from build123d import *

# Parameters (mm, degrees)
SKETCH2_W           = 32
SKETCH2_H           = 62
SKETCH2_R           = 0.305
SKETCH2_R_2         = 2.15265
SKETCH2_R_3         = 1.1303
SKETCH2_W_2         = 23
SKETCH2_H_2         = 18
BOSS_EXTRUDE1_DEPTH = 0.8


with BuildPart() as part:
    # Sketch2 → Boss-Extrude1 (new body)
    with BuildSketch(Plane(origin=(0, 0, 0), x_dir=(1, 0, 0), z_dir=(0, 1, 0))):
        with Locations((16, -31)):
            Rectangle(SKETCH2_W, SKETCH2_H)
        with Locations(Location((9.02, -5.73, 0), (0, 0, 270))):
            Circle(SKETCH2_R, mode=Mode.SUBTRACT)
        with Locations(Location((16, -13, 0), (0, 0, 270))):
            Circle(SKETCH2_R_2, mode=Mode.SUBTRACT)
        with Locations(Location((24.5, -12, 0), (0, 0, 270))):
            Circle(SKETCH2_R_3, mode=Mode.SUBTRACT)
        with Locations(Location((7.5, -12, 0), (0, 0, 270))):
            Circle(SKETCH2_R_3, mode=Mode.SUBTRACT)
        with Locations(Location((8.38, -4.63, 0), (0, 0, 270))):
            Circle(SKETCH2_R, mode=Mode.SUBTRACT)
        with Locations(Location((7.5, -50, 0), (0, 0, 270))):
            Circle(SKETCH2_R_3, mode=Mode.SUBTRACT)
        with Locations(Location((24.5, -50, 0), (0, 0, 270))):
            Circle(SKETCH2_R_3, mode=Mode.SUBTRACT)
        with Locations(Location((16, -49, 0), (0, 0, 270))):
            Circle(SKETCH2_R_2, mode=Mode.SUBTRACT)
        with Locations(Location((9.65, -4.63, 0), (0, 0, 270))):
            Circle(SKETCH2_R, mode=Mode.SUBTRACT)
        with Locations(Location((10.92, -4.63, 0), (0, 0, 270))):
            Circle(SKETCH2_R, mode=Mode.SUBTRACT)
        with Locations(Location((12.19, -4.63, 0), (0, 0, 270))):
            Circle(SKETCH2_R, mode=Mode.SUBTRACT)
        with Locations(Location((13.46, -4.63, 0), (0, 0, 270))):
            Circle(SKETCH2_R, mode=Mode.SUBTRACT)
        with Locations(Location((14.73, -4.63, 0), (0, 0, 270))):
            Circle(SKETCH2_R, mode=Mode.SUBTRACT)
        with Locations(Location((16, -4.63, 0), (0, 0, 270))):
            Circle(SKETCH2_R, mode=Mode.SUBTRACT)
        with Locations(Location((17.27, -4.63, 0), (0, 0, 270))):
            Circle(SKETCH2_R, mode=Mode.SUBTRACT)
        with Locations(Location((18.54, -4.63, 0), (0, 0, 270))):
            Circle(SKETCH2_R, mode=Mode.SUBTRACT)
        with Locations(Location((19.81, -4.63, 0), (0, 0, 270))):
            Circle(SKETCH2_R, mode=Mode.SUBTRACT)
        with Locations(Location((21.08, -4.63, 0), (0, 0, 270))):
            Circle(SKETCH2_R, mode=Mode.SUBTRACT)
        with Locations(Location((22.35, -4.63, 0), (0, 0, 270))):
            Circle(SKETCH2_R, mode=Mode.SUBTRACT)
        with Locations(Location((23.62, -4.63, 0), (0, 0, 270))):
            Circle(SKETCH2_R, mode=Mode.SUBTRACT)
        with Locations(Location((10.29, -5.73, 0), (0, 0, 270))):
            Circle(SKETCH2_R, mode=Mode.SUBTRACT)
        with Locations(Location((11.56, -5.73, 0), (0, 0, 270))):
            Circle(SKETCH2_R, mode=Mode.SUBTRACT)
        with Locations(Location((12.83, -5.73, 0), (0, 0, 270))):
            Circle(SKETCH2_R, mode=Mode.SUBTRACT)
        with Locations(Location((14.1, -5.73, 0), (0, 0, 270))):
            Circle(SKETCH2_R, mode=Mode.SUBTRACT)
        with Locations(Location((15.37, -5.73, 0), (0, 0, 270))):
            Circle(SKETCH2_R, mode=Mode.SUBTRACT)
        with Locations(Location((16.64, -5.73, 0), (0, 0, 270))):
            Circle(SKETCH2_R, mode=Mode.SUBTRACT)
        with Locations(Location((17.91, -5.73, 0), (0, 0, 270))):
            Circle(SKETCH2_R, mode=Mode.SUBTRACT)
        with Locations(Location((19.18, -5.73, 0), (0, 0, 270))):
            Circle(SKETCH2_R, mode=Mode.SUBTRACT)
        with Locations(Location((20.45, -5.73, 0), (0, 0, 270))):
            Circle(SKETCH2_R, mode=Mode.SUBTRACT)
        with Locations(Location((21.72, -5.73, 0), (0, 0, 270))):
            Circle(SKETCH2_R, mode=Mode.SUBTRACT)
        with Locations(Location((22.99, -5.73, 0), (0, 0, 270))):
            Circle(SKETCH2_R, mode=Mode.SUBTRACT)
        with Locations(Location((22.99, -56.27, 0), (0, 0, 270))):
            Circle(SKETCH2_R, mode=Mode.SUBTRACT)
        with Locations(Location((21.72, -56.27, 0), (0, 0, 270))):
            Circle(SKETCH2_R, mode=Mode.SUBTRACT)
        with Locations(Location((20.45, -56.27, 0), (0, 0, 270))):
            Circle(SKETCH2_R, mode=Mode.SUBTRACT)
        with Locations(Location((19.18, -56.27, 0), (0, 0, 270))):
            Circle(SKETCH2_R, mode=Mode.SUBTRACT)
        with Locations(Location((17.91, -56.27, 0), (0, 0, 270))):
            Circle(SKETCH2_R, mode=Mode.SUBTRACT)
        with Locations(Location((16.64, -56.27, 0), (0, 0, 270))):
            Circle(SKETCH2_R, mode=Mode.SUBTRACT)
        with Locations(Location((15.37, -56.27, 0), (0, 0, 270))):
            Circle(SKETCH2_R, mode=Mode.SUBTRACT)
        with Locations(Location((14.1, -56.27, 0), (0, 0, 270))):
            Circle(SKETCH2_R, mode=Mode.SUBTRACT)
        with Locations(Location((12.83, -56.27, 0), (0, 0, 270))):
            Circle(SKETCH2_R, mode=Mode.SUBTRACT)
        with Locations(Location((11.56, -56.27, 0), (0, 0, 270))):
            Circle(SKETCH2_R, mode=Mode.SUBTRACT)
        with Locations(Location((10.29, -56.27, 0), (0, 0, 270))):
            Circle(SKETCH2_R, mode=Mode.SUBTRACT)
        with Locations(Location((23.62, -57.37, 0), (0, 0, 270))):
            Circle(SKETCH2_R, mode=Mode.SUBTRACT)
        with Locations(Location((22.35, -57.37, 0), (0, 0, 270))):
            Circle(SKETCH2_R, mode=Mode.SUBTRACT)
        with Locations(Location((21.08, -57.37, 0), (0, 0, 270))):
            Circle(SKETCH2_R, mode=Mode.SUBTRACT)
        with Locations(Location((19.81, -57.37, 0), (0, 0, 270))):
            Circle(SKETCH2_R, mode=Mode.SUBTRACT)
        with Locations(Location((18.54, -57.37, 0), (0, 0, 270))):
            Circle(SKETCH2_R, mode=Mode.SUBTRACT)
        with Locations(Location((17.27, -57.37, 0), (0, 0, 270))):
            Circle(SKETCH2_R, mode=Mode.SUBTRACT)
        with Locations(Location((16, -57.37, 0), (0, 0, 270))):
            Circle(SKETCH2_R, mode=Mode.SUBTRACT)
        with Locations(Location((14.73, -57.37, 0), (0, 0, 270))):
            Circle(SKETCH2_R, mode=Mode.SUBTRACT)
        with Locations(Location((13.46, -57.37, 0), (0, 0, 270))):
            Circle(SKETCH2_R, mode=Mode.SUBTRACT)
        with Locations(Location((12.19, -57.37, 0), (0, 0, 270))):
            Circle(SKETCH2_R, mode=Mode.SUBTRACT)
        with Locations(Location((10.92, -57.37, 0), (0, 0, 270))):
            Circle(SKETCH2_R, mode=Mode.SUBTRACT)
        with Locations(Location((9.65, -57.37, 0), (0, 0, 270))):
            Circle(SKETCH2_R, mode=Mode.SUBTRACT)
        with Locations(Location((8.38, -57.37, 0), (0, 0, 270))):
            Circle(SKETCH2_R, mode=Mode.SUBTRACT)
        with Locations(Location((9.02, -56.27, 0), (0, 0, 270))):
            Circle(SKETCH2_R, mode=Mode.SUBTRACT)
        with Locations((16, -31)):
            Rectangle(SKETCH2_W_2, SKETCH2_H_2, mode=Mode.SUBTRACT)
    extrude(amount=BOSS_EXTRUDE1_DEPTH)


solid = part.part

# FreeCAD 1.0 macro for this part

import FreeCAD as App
import Part
import Sketcher
from FreeCAD import Vector

doc = App.newDocument("Part")
body = doc.addObject("PartDesign::Body", "Body")

sketch1 = doc.addObject("Sketcher::SketchObject", "Sketch")
body.addObject(sketch1)
sketch1.AttachmentSupport = (doc.XZ_Plane, [""])
sketch1.MapMode = "FlatFace"
sketch1.addGeometry(Part.LineSegment(Vector(0, 0, 0), Vector(0, 62, 0)), False)
sketch1.addGeometry(Part.LineSegment(Vector(0, 62, 0), Vector(32, 62, 0)), False)
sketch1.addGeometry(Part.LineSegment(Vector(32, 62, 0), Vector(32, 0, 0)), False)
sketch1.addGeometry(Part.LineSegment(Vector(32, 0, 0), Vector(0, 0, 0)), False)
sketch1.addGeometry(Part.Circle(Vector(8.38, 57.37, 0), Vector(0, 0, 1), 0.3), False)
sketch1.addGeometry(Part.Circle(Vector(9.02, 56.27, 0), Vector(0, 0, 1), 0.3), False)
sketch1.addGeometry(Part.Circle(Vector(9.65, 57.37, 0), Vector(0, 0, 1), 0.3), False)
sketch1.addGeometry(Part.Circle(Vector(7.5, 50, 0), Vector(0, 0, 1), 1.13), False)
sketch1.addGeometry(Part.Circle(Vector(10.92, 57.37, 0), Vector(0, 0, 1), 0.3), False)
sketch1.addGeometry(Part.Circle(Vector(10.29, 56.27, 0), Vector(0, 0, 1), 0.3), False)
sketch1.addGeometry(Part.Circle(Vector(11.56, 56.27, 0), Vector(0, 0, 1), 0.3), False)
sketch1.addGeometry(Part.Circle(Vector(12.19, 57.37, 0), Vector(0, 0, 1), 0.3), False)
sketch1.addGeometry(Part.Circle(Vector(12.83, 56.27, 0), Vector(0, 0, 1), 0.3), False)
sketch1.addGeometry(Part.Circle(Vector(13.46, 57.37, 0), Vector(0, 0, 1), 0.3), False)
sketch1.addGeometry(Part.Circle(Vector(14.1, 56.27, 0), Vector(0, 0, 1), 0.3), False)
sketch1.addGeometry(Part.Circle(Vector(14.73, 57.37, 0), Vector(0, 0, 1), 0.3), False)
sketch1.addGeometry(Part.Circle(Vector(15.37, 56.27, 0), Vector(0, 0, 1), 0.3), False)
sketch1.addGeometry(Part.Circle(Vector(16, 57.37, 0), Vector(0, 0, 1), 0.3), False)
sketch1.addGeometry(Part.Circle(Vector(16.64, 56.27, 0), Vector(0, 0, 1), 0.3), False)
sketch1.addGeometry(Part.Circle(Vector(17.27, 57.37, 0), Vector(0, 0, 1), 0.3), False)
sketch1.addGeometry(Part.Circle(Vector(17.91, 56.27, 0), Vector(0, 0, 1), 0.3), False)
sketch1.addGeometry(Part.Circle(Vector(18.54, 57.37, 0), Vector(0, 0, 1), 0.3), False)
sketch1.addGeometry(Part.Circle(Vector(19.18, 56.27, 0), Vector(0, 0, 1), 0.3), False)
sketch1.addGeometry(Part.Circle(Vector(19.81, 57.37, 0), Vector(0, 0, 1), 0.3), False)
sketch1.addGeometry(Part.Circle(Vector(20.45, 56.27, 0), Vector(0, 0, 1), 0.3), False)
sketch1.addGeometry(Part.Circle(Vector(21.08, 57.37, 0), Vector(0, 0, 1), 0.3), False)
sketch1.addGeometry(Part.Circle(Vector(21.72, 56.27, 0), Vector(0, 0, 1), 0.3), False)
sketch1.addGeometry(Part.Circle(Vector(16, 49, 0), Vector(0, 0, 1), 2.15), False)
sketch1.addGeometry(Part.Circle(Vector(22.35, 57.37, 0), Vector(0, 0, 1), 0.3), False)
sketch1.addGeometry(Part.Circle(Vector(22.99, 56.27, 0), Vector(0, 0, 1), 0.3), False)
sketch1.addGeometry(Part.Circle(Vector(23.62, 57.37, 0), Vector(0, 0, 1), 0.3), False)
sketch1.addGeometry(Part.Circle(Vector(24.5, 50, 0), Vector(0, 0, 1), 1.13), False)
sketch1.addGeometry(Part.Circle(Vector(7.5, 12, 0), Vector(0, 0, 1), 1.13), False)
sketch1.addGeometry(Part.Circle(Vector(8.38, 4.63, 0), Vector(0, 0, 1), 0.3), False)
sketch1.addGeometry(Part.Circle(Vector(9.02, 5.73, 0), Vector(0, 0, 1), 0.3), False)
sketch1.addGeometry(Part.Circle(Vector(9.65, 4.63, 0), Vector(0, 0, 1), 0.3), False)
sketch1.addGeometry(Part.Circle(Vector(10.29, 5.73, 0), Vector(0, 0, 1), 0.3), False)
sketch1.addGeometry(Part.Circle(Vector(10.92, 4.63, 0), Vector(0, 0, 1), 0.3), False)
sketch1.addGeometry(Part.Circle(Vector(11.56, 5.73, 0), Vector(0, 0, 1), 0.3), False)
sketch1.addGeometry(Part.Circle(Vector(12.19, 4.63, 0), Vector(0, 0, 1), 0.3), False)
sketch1.addGeometry(Part.Circle(Vector(12.83, 5.73, 0), Vector(0, 0, 1), 0.3), False)
sketch1.addGeometry(Part.Circle(Vector(13.46, 4.63, 0), Vector(0, 0, 1), 0.3), False)
sketch1.addGeometry(Part.Circle(Vector(14.1, 5.73, 0), Vector(0, 0, 1), 0.3), False)
sketch1.addGeometry(Part.Circle(Vector(14.73, 4.63, 0), Vector(0, 0, 1), 0.3), False)
sketch1.addGeometry(Part.Circle(Vector(15.37, 5.73, 0), Vector(0, 0, 1), 0.3), False)
sketch1.addGeometry(Part.LineSegment(Vector(27.5, 40, 0), Vector(4.5, 40, 0)), False)
sketch1.addGeometry(Part.LineSegment(Vector(4.5, 40, 0), Vector(4.5, 22, 0)), False)
sketch1.addGeometry(Part.LineSegment(Vector(4.5, 22, 0), Vector(27.5, 22, 0)), False)
sketch1.addGeometry(Part.LineSegment(Vector(27.5, 22, 0), Vector(27.5, 40, 0)), False)
sketch1.addGeometry(Part.Circle(Vector(16, 13, 0), Vector(0, 0, 1), 2.15), False)
sketch1.addGeometry(Part.Circle(Vector(16.64, 5.73, 0), Vector(0, 0, 1), 0.3), False)
sketch1.addGeometry(Part.Circle(Vector(16, 4.63, 0), Vector(0, 0, 1), 0.3), False)
sketch1.addGeometry(Part.Circle(Vector(17.27, 4.63, 0), Vector(0, 0, 1), 0.3), False)
sketch1.addGeometry(Part.Circle(Vector(17.91, 5.73, 0), Vector(0, 0, 1), 0.3), False)
sketch1.addGeometry(Part.Circle(Vector(18.54, 4.63, 0), Vector(0, 0, 1), 0.3), False)
sketch1.addGeometry(Part.Circle(Vector(19.18, 5.73, 0), Vector(0, 0, 1), 0.3), False)
sketch1.addGeometry(Part.Circle(Vector(19.81, 4.63, 0), Vector(0, 0, 1), 0.3), False)
sketch1.addGeometry(Part.Circle(Vector(20.45, 5.73, 0), Vector(0, 0, 1), 0.3), False)
sketch1.addGeometry(Part.Circle(Vector(21.72, 5.73, 0), Vector(0, 0, 1), 0.3), False)
sketch1.addGeometry(Part.Circle(Vector(21.08, 4.63, 0), Vector(0, 0, 1), 0.3), False)
sketch1.addGeometry(Part.Circle(Vector(24.5, 12, 0), Vector(0, 0, 1), 1.13), False)
sketch1.addGeometry(Part.Circle(Vector(22.35, 4.63, 0), Vector(0, 0, 1), 0.3), False)
sketch1.addGeometry(Part.Circle(Vector(22.99, 5.73, 0), Vector(0, 0, 1), 0.3), False)
sketch1.addGeometry(Part.Circle(Vector(23.62, 4.63, 0), Vector(0, 0, 1), 0.3), False)
sketch1.addConstraint(Sketcher.Constraint("Coincident", 0, 2, 1, 1))
sketch1.addConstraint(Sketcher.Constraint("Coincident", 1, 2, 2, 1))
sketch1.addConstraint(Sketcher.Constraint("Coincident", 2, 2, 3, 1))
sketch1.addConstraint(Sketcher.Constraint("Coincident", 3, 2, 0, 1))
sketch1.addConstraint(Sketcher.Constraint("Coincident", 45, 2, 46, 1))
sketch1.addConstraint(Sketcher.Constraint("Coincident", 46, 2, 47, 1))
sketch1.addConstraint(Sketcher.Constraint("Coincident", 47, 2, 48, 1))
sketch1.addConstraint(Sketcher.Constraint("Coincident", 48, 2, 45, 1))
sketch1.addConstraint(Sketcher.Constraint("Vertical", 0))
sketch1.addConstraint(Sketcher.Constraint("Horizontal", 1))
sketch1.addConstraint(Sketcher.Constraint("Vertical", 2))
sketch1.addConstraint(Sketcher.Constraint("Horizontal", 3))
sketch1.addConstraint(Sketcher.Constraint("Horizontal", 45))
sketch1.addConstraint(Sketcher.Constraint("Vertical", 46))
sketch1.addConstraint(Sketcher.Constraint("Horizontal", 47))
sketch1.addConstraint(Sketcher.Constraint("Vertical", 48))
sketch1.addConstraint(Sketcher.Constraint("Coincident", 3, 2, -1, 1))
sketch1.addConstraint(Sketcher.Constraint("Equal", 4, 5))
sketch1.addConstraint(Sketcher.Constraint("Equal", 5, 6))
sketch1.addConstraint(Sketcher.Constraint("Equal", 6, 8))
sketch1.addConstraint(Sketcher.Constraint("Equal", 8, 9))
sketch1.addConstraint(Sketcher.Constraint("Equal", 9, 10))
sketch1.addConstraint(Sketcher.Constraint("Equal", 10, 11))
sketch1.addConstraint(Sketcher.Constraint("Equal", 11, 12))
sketch1.addConstraint(Sketcher.Constraint("Equal", 12, 13))
sketch1.addConstraint(Sketcher.Constraint("Equal", 13, 14))
sketch1.addConstraint(Sketcher.Constraint("Equal", 14, 15))
sketch1.addConstraint(Sketcher.Constraint("Equal", 15, 16))
sketch1.addConstraint(Sketcher.Constraint("Equal", 16, 17))
sketch1.addConstraint(Sketcher.Constraint("Equal", 17, 18))
sketch1.addConstraint(Sketcher.Constraint("Equal", 18, 19))
sketch1.addConstraint(Sketcher.Constraint("Equal", 19, 20))
sketch1.addConstraint(Sketcher.Constraint("Equal", 20, 21))
sketch1.addConstraint(Sketcher.Constraint("Equal", 21, 22))
sketch1.addConstraint(Sketcher.Constraint("Equal", 22, 23))
sketch1.addConstraint(Sketcher.Constraint("Equal", 23, 24))
sketch1.addConstraint(Sketcher.Constraint("Equal", 24, 25))
sketch1.addConstraint(Sketcher.Constraint("Equal", 25, 26))
sketch1.addConstraint(Sketcher.Constraint("Equal", 26, 28))
sketch1.addConstraint(Sketcher.Constraint("Equal", 28, 29))
sketch1.addConstraint(Sketcher.Constraint("Equal", 29, 30))
sketch1.addConstraint(Sketcher.Constraint("Equal", 7, 31))
sketch1.addConstraint(Sketcher.Constraint("Equal", 31, 32))
sketch1.addConstraint(Sketcher.Constraint("Equal", 30, 33))
sketch1.addConstraint(Sketcher.Constraint("Equal", 33, 34))
sketch1.addConstraint(Sketcher.Constraint("Equal", 34, 35))
sketch1.addConstraint(Sketcher.Constraint("Equal", 35, 36))
sketch1.addConstraint(Sketcher.Constraint("Equal", 36, 37))
sketch1.addConstraint(Sketcher.Constraint("Equal", 37, 38))
sketch1.addConstraint(Sketcher.Constraint("Equal", 38, 39))
sketch1.addConstraint(Sketcher.Constraint("Equal", 39, 40))
sketch1.addConstraint(Sketcher.Constraint("Equal", 40, 41))
sketch1.addConstraint(Sketcher.Constraint("Equal", 41, 42))
sketch1.addConstraint(Sketcher.Constraint("Equal", 42, 43))
sketch1.addConstraint(Sketcher.Constraint("Equal", 43, 44))
sketch1.addConstraint(Sketcher.Constraint("Equal", 27, 49))
sketch1.addConstraint(Sketcher.Constraint("Equal", 44, 50))
sketch1.addConstraint(Sketcher.Constraint("Equal", 50, 51))
sketch1.addConstraint(Sketcher.Constraint("Equal", 51, 52))
sketch1.addConstraint(Sketcher.Constraint("Equal", 52, 53))
sketch1.addConstraint(Sketcher.Constraint("Equal", 53, 54))
sketch1.addConstraint(Sketcher.Constraint("Equal", 54, 55))
sketch1.addConstraint(Sketcher.Constraint("Equal", 55, 56))
sketch1.addConstraint(Sketcher.Constraint("Equal", 56, 57))
sketch1.addConstraint(Sketcher.Constraint("Equal", 57, 58))
sketch1.addConstraint(Sketcher.Constraint("Equal", 58, 59))
sketch1.addConstraint(Sketcher.Constraint("Equal", 32, 60))
sketch1.addConstraint(Sketcher.Constraint("Equal", 59, 61))
sketch1.addConstraint(Sketcher.Constraint("Equal", 61, 62))
sketch1.addConstraint(Sketcher.Constraint("Equal", 62, 63))
sketch1.addConstraint(Sketcher.Constraint("Horizontal", 4, 3, 6, 3))
sketch1.addConstraint(Sketcher.Constraint("Horizontal", 6, 3, 8, 3))
sketch1.addConstraint(Sketcher.Constraint("Horizontal", 5, 3, 9, 3))
sketch1.addConstraint(Sketcher.Constraint("Horizontal", 9, 3, 10, 3))
sketch1.addConstraint(Sketcher.Constraint("Horizontal", 8, 3, 11, 3))
sketch1.addConstraint(Sketcher.Constraint("Horizontal", 10, 3, 12, 3))
sketch1.addConstraint(Sketcher.Constraint("Horizontal", 11, 3, 13, 3))
sketch1.addConstraint(Sketcher.Constraint("Horizontal", 12, 3, 14, 3))
sketch1.addConstraint(Sketcher.Constraint("Horizontal", 13, 3, 15, 3))
sketch1.addConstraint(Sketcher.Constraint("Horizontal", 14, 3, 16, 3))
sketch1.addConstraint(Sketcher.Constraint("Horizontal", 15, 3, 17, 3))
sketch1.addConstraint(Sketcher.Constraint("Horizontal", 16, 3, 18, 3))
sketch1.addConstraint(Sketcher.Constraint("Horizontal", 17, 3, 19, 3))
sketch1.addConstraint(Sketcher.Constraint("Horizontal", 18, 3, 20, 3))
sketch1.addConstraint(Sketcher.Constraint("Horizontal", 19, 3, 21, 3))
sketch1.addConstraint(Sketcher.Constraint("Horizontal", 20, 3, 22, 3))
sketch1.addConstraint(Sketcher.Constraint("Horizontal", 21, 3, 23, 3))
sketch1.addConstraint(Sketcher.Constraint("Horizontal", 22, 3, 24, 3))
sketch1.addConstraint(Sketcher.Constraint("Horizontal", 23, 3, 25, 3))
sketch1.addConstraint(Sketcher.Constraint("Horizontal", 24, 3, 26, 3))
sketch1.addConstraint(Sketcher.Constraint("Horizontal", 25, 3, 28, 3))
sketch1.addConstraint(Sketcher.Constraint("Horizontal", 26, 3, 29, 3))
sketch1.addConstraint(Sketcher.Constraint("Horizontal", 28, 3, 30, 3))
sketch1.addConstraint(Sketcher.Constraint("Horizontal", 7, 3, 31, 3))
sketch1.addConstraint(Sketcher.Constraint("Horizontal", 33, 3, 35, 3))
sketch1.addConstraint(Sketcher.Constraint("Horizontal", 34, 3, 36, 3))
sketch1.addConstraint(Sketcher.Constraint("Horizontal", 35, 3, 37, 3))
sketch1.addConstraint(Sketcher.Constraint("Horizontal", 36, 3, 38, 3))
sketch1.addConstraint(Sketcher.Constraint("Horizontal", 37, 3, 39, 3))
sketch1.addConstraint(Sketcher.Constraint("Horizontal", 38, 3, 40, 3))
sketch1.addConstraint(Sketcher.Constraint("Horizontal", 39, 3, 41, 3))
sketch1.addConstraint(Sketcher.Constraint("Horizontal", 40, 3, 42, 3))
sketch1.addConstraint(Sketcher.Constraint("Horizontal", 41, 3, 43, 3))
sketch1.addConstraint(Sketcher.Constraint("Horizontal", 42, 3, 44, 3))
sketch1.addConstraint(Sketcher.Constraint("Horizontal", 44, 3, 50, 3))
sketch1.addConstraint(Sketcher.Constraint("Horizontal", 43, 3, 51, 3))
sketch1.addConstraint(Sketcher.Constraint("Horizontal", 51, 3, 52, 3))
sketch1.addConstraint(Sketcher.Constraint("Horizontal", 50, 3, 53, 3))
sketch1.addConstraint(Sketcher.Constraint("Horizontal", 52, 3, 54, 3))
sketch1.addConstraint(Sketcher.Constraint("Horizontal", 53, 3, 55, 3))
sketch1.addConstraint(Sketcher.Constraint("Horizontal", 54, 3, 56, 3))
sketch1.addConstraint(Sketcher.Constraint("Horizontal", 55, 3, 57, 3))
sketch1.addConstraint(Sketcher.Constraint("Horizontal", 57, 3, 58, 3))
sketch1.addConstraint(Sketcher.Constraint("Horizontal", 56, 3, 59, 3))
sketch1.addConstraint(Sketcher.Constraint("Horizontal", 32, 3, 60, 3))
sketch1.addConstraint(Sketcher.Constraint("Horizontal", 59, 3, 61, 3))
sketch1.addConstraint(Sketcher.Constraint("Horizontal", 58, 3, 62, 3))
sketch1.addConstraint(Sketcher.Constraint("Horizontal", 61, 3, 63, 3))
sketch1.addConstraint(Sketcher.Constraint("Vertical", 17, 3, 27, 3))
sketch1.addConstraint(Sketcher.Constraint("Vertical", 7, 3, 32, 3))
sketch1.addConstraint(Sketcher.Constraint("Vertical", 4, 3, 33, 3))
sketch1.addConstraint(Sketcher.Constraint("Vertical", 5, 3, 34, 3))
sketch1.addConstraint(Sketcher.Constraint("Vertical", 6, 3, 35, 3))
sketch1.addConstraint(Sketcher.Constraint("Vertical", 9, 3, 36, 3))
sketch1.addConstraint(Sketcher.Constraint("Vertical", 8, 3, 37, 3))
sketch1.addConstraint(Sketcher.Constraint("Vertical", 10, 3, 38, 3))
sketch1.addConstraint(Sketcher.Constraint("Vertical", 11, 3, 39, 3))
sketch1.addConstraint(Sketcher.Constraint("Vertical", 12, 3, 40, 3))
sketch1.addConstraint(Sketcher.Constraint("Vertical", 13, 3, 41, 3))
sketch1.addConstraint(Sketcher.Constraint("Vertical", 14, 3, 42, 3))
sketch1.addConstraint(Sketcher.Constraint("Vertical", 15, 3, 43, 3))
sketch1.addConstraint(Sketcher.Constraint("Vertical", 16, 3, 44, 3))
sketch1.addConstraint(Sketcher.Constraint("Vertical", 27, 3, 49, 3))
sketch1.addConstraint(Sketcher.Constraint("Vertical", 18, 3, 50, 3))
sketch1.addConstraint(Sketcher.Constraint("Vertical", 49, 3, 51, 3))
sketch1.addConstraint(Sketcher.Constraint("Vertical", 19, 3, 52, 3))
sketch1.addConstraint(Sketcher.Constraint("Vertical", 20, 3, 53, 3))
sketch1.addConstraint(Sketcher.Constraint("Vertical", 21, 3, 54, 3))
sketch1.addConstraint(Sketcher.Constraint("Vertical", 22, 3, 55, 3))
sketch1.addConstraint(Sketcher.Constraint("Vertical", 23, 3, 56, 3))
sketch1.addConstraint(Sketcher.Constraint("Vertical", 24, 3, 57, 3))
sketch1.addConstraint(Sketcher.Constraint("Vertical", 26, 3, 58, 3))
sketch1.addConstraint(Sketcher.Constraint("Vertical", 25, 3, 59, 3))
sketch1.addConstraint(Sketcher.Constraint("Vertical", 31, 3, 60, 3))
sketch1.addConstraint(Sketcher.Constraint("Vertical", 28, 3, 61, 3))
sketch1.addConstraint(Sketcher.Constraint("Vertical", 29, 3, 62, 3))
sketch1.addConstraint(Sketcher.Constraint("Vertical", 30, 3, 63, 3))
sketch1.addConstraint(Sketcher.Constraint("Diameter", 4, 0.61))
sketch1.addConstraint(Sketcher.Constraint("DistanceX", 1, 1, 1, 2, 32.0))
sketch1.addConstraint(Sketcher.Constraint("DistanceX", 45, 2, 45, 1, 23.0))
sketch1.addConstraint(Sketcher.Constraint("DistanceY", 0, 1, 0, 2, 62.0))
sketch1.addConstraint(Sketcher.Constraint("DistanceY", 46, 2, 46, 1, 18.0))
sketch1.addConstraint(Sketcher.Constraint("DistanceY", -1, 1, 7, 3, 50.0))
sketch1.addConstraint(Sketcher.Constraint("DistanceX", -1, 1, 17, 3, 16.0))
sketch1.addConstraint(Sketcher.Constraint("DistanceY", -1, 1, 27, 3, 49.0))
sketch1.addConstraint(Sketcher.Constraint("DistanceY", -1, 1, 32, 3, 12.0))
sketch1.addConstraint(Sketcher.Constraint("DistanceY", -1, 1, 49, 3, 13.0))
sketch1.addConstraint(Sketcher.Constraint("DistanceY", -1, 1, 45, 2, 40.0))
sketch1.addConstraint(Sketcher.Constraint("Diameter", 7, 2.2606))
sketch1.addConstraint(Sketcher.Constraint("Diameter", 27, 4.3053))
sketch1.addConstraint(Sketcher.Constraint("DistanceX", -1, 1, 7, 3, 7.5))
sketch1.addConstraint(Sketcher.Constraint("DistanceX", -1, 1, 14, 3, 14.1))
sketch1.addConstraint(Sketcher.Constraint("DistanceX", -1, 1, 31, 3, 24.5))
sketch1.addConstraint(Sketcher.Constraint("DistanceX", -1, 1, 45, 2, 4.5))
sketch1.addConstraint(Sketcher.Constraint("DistanceX", -1, 1, 4, 3, 8.38))
sketch1.addConstraint(Sketcher.Constraint("DistanceY", -1, 1, 4, 3, 57.37))
sketch1.addConstraint(Sketcher.Constraint("DistanceX", -1, 1, 5, 3, 9.02))
sketch1.addConstraint(Sketcher.Constraint("DistanceY", -1, 1, 5, 3, 56.27))
sketch1.addConstraint(Sketcher.Constraint("DistanceX", -1, 1, 6, 3, 9.65))
sketch1.addConstraint(Sketcher.Constraint("DistanceX", -1, 1, 8, 3, 10.92))
sketch1.addConstraint(Sketcher.Constraint("DistanceX", -1, 1, 9, 3, 10.29))
sketch1.addConstraint(Sketcher.Constraint("DistanceX", -1, 1, 10, 3, 11.56))
sketch1.addConstraint(Sketcher.Constraint("DistanceX", -1, 1, 11, 3, 12.19))
sketch1.addConstraint(Sketcher.Constraint("DistanceX", -1, 1, 12, 3, 12.83))
sketch1.addConstraint(Sketcher.Constraint("DistanceX", -1, 1, 13, 3, 13.46))
sketch1.addConstraint(Sketcher.Constraint("DistanceX", -1, 1, 15, 3, 14.73))
sketch1.addConstraint(Sketcher.Constraint("DistanceX", -1, 1, 16, 3, 15.37))
sketch1.addConstraint(Sketcher.Constraint("DistanceX", -1, 1, 18, 3, 16.64))
sketch1.addConstraint(Sketcher.Constraint("DistanceX", -1, 1, 19, 3, 17.27))
sketch1.addConstraint(Sketcher.Constraint("DistanceX", -1, 1, 20, 3, 17.91))
sketch1.addConstraint(Sketcher.Constraint("DistanceX", -1, 1, 21, 3, 18.54))
sketch1.addConstraint(Sketcher.Constraint("DistanceX", -1, 1, 22, 3, 19.18))
sketch1.addConstraint(Sketcher.Constraint("DistanceX", -1, 1, 23, 3, 19.81))
sketch1.addConstraint(Sketcher.Constraint("DistanceX", -1, 1, 24, 3, 20.45))
sketch1.addConstraint(Sketcher.Constraint("DistanceX", -1, 1, 25, 3, 21.08))
sketch1.addConstraint(Sketcher.Constraint("DistanceX", -1, 1, 26, 3, 21.72))
sketch1.addConstraint(Sketcher.Constraint("DistanceX", -1, 1, 28, 3, 22.35))
sketch1.addConstraint(Sketcher.Constraint("DistanceX", -1, 1, 29, 3, 22.99))
sketch1.addConstraint(Sketcher.Constraint("DistanceX", -1, 1, 30, 3, 23.62))
sketch1.addConstraint(Sketcher.Constraint("DistanceY", -1, 1, 33, 3, 4.63))
sketch1.addConstraint(Sketcher.Constraint("DistanceY", -1, 1, 34, 3, 5.73))
pad1 = doc.addObject("PartDesign::Pad", "Pad")
body.addObject(pad1)
pad1.Profile = sketch1
pad1.Length = 0.8
pad1.Reversed = True

doc.recompute()
